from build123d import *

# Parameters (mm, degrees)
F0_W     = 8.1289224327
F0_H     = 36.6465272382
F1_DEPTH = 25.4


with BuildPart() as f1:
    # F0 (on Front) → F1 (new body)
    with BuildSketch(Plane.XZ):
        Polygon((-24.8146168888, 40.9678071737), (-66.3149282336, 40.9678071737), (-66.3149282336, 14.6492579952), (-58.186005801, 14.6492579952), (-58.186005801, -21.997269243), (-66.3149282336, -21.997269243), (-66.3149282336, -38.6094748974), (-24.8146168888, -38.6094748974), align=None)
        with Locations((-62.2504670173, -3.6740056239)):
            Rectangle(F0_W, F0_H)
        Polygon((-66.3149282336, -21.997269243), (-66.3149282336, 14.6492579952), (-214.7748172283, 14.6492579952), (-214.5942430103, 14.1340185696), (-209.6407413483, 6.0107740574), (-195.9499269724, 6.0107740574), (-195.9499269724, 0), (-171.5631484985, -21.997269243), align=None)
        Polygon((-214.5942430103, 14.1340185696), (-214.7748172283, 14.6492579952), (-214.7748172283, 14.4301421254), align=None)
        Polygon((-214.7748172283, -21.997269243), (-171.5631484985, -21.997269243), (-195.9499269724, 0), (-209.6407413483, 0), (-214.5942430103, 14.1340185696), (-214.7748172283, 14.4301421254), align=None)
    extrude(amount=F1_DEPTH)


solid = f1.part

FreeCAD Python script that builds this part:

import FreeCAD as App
import Part
import Sketcher

V = App.Vector
Q = App.Units.Quantity

doc = App.newDocument("Part")
body = doc.addObject("PartDesign::Body", "Body")

# Sketch on XZ plane
sketch1 = body.newObject("Sketcher::SketchObject", "Sketch")
sketch1.AttachmentSupport = (doc.getObject("XZ_Plane"), [""])
sketch1.MapMode = "FlatFace"
sketch1.addGeometry([
    Part.LineSegment(V(-25, 41, 0), V(-66, 41, 0)),  # 0
    Part.LineSegment(V(-66, 41, 0), V(-66, 15, 0)),  # 1
    Part.LineSegment(V(-66, 15, 0), V(-215, 15, 0)),  # 2
    Part.LineSegment(V(-215, 15, 0), V(-215, -22, 0)),  # 3
    Part.LineSegment(V(-215, -22, 0), V(-66, -22, 0)),  # 4
    Part.LineSegment(V(-66, -22, 0), V(-66, -39, 0)),  # 5
    Part.LineSegment(V(-66, -39, 0), V(-25, -39, 0)),  # 6
    Part.LineSegment(V(-25, -39, 0), V(-25, 41, 0)),  # 7
    Part.LineSegment(V(-215, 14, 0), V(-210, 6, 0)),  # 8
    Part.LineSegment(V(-210, 6, 0), V(-196, 6, 0)),  # 9
    Part.LineSegment(V(-196, 6, 0), V(-196, 0, 0)),  # 10
    Part.LineSegment(V(-196, 0, 0), V(-210, 0, 0)),  # 11
    Part.LineSegment(V(-210, 0, 0), V(-215, 14, 0)),  # 12
], False)
sketch1.addConstraint([
    Sketcher.Constraint("Coincident", 0, 2, 1, 1),
    Sketcher.Constraint("Coincident", 1, 2, 2, 1),
    Sketcher.Constraint("Coincident", 2, 2, 3, 1),
    Sketcher.Constraint("Coincident", 3, 2, 4, 1),
    Sketcher.Constraint("Coincident", 4, 2, 5, 1),
    Sketcher.Constraint("Coincident", 5, 2, 6, 1),
    Sketcher.Constraint("Coincident", 6, 2, 7, 1),
    Sketcher.Constraint("Coincident", 7, 2, 0, 1),
    Sketcher.Constraint("Coincident", 8, 2, 9, 1),
    Sketcher.Constraint("Coincident", 9, 2, 10, 1),
    Sketcher.Constraint("Coincident", 10, 2, 11, 1),
    Sketcher.Constraint("Coincident", 11, 2, 12, 1),
    Sketcher.Constraint("Coincident", 12, 2, 8, 1),
    Sketcher.Constraint("Horizontal", 0),
    Sketcher.Constraint("Vertical", 1),
    Sketcher.Constraint("Horizontal", 2),
    Sketcher.Constraint("Vertical", 3),
    Sketcher.Constraint("Horizontal", 4),
    Sketcher.Constraint("Vertical", 5),
    Sketcher.Constraint("Horizontal", 6),
    Sketcher.Constraint("Vertical", 7),
    Sketcher.Constraint("Horizontal", 9),
    Sketcher.Constraint("Vertical", 10),
    Sketcher.Constraint("Horizontal", 11),
    Sketcher.Constraint("PointOnObject", 10, 2, -1),
    Sketcher.Constraint("Vertical", 1, 2, 4, 2),
    Sketcher.Constraint("Vertical", 8, 2, 11, 2),
    Sketcher.Constraint("DistanceX", 0, 2, 0, 1, 41.500311),
    Sketcher.Constraint("DistanceX", 2, 2, 2, 1, 148.459889),
    Sketcher.Constraint("DistanceY", 1, 2, 1, 1, 26.318549),
    Sketcher.Constraint("DistanceX", 9, 2, 1, 2, 129.634999),
    Sketcher.Constraint("DistanceX", 12, 2, 8, 2, 4.953502),
    Sketcher.Constraint("DistanceX", 9, 1, 9, 2, 13.690814),
    Sketcher.Constraint("DistanceY", 3, 2, 3, 1, 36.646527),
    Sketcher.Constraint("DistanceY", 5, 2, 5, 1, 16.612206),
    Sketcher.Constraint("DistanceY", 10, 2, 10, 1, 6.010774),
    Sketcher.Constraint("DistanceX", 0, 2, -1, 1, 66.314928),
    Sketcher.Constraint("DistanceY", 3, 2, -1, 1, 21.997269),
    Sketcher.Constraint("DistanceY", -1, 1, 12, 2, 14.134019),
])
pad1 = body.newObject("PartDesign::Pad", "Pad")
pad1.Profile = sketch1
pad1.Length = Q("1 in")

doc.recompute()
